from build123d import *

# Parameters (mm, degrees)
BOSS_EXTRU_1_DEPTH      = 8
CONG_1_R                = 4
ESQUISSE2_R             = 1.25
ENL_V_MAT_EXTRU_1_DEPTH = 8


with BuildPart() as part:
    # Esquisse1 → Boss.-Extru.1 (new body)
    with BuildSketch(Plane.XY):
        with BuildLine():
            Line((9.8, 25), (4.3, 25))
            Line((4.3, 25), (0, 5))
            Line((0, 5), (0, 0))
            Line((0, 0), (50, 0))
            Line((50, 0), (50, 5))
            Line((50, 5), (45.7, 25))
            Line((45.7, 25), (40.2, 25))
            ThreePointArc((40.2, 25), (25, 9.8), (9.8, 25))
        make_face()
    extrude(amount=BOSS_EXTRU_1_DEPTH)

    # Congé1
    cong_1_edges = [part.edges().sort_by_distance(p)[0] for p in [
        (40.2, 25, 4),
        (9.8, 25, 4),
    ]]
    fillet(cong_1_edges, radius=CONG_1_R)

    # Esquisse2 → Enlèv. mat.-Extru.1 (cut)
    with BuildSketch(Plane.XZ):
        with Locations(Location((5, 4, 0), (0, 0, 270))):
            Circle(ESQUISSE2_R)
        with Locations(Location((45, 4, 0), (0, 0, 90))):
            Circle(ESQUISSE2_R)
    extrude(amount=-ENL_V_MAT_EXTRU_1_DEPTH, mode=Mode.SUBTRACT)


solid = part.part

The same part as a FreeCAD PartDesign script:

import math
import FreeCAD as App
import Part
import Sketcher

V = App.Vector


def edges_at(feature, points):
    """Names of the edges that pass closest to the given points."""
    edges = feature.Shape.Edges
    near = lambda p: min(range(len(edges)), key=lambda i: edges[i].distToShape(Part.Vertex(*p))[0])
    return sorted({f"Edge{near(p) + 1}" for p in points})

doc = App.newDocument("Part")
body = doc.addObject("PartDesign::Body", "Body")

# Sketch on XY plane
sketch1 = body.newObject("Sketcher::SketchObject", "Sketch")
sketch1.AttachmentSupport = (doc.getObject("XY_Plane"), [""])
sketch1.MapMode = "FlatFace"
sketch1.addGeometry([
    Part.LineSegment(V(10, 25, 0), V(4, 25, 0)),  # 0
    Part.LineSegment(V(4, 25, 0), V(0, 5, 0)),  # 1
    Part.LineSegment(V(0, 5, 0), V(0, 0, 0)),  # 2
    Part.LineSegment(V(0, 0, 0), V(50, 0, 0)),  # 3
    Part.LineSegment(V(50, 0, 0), V(50, 5, 0)),  # 4
    Part.LineSegment(V(50, 5, 0), V(46, 25, 0)),  # 5
    Part.LineSegment(V(46, 25, 0), V(40, 25, 0)),  # 6
    Part.ArcOfCircle(Part.Circle(V(25, 25, 0), V(0, 0, 1), 15), math.radians(180), math.radians(360)),  # 7
], False)
sketch1.addConstraint([
    Sketcher.Constraint("Coincident", 0, 2, 1, 1),
    Sketcher.Constraint("Coincident", 1, 2, 2, 1),
    Sketcher.Constraint("Coincident", 2, 2, 3, 1),
    Sketcher.Constraint("Coincident", 3, 2, 4, 1),
    Sketcher.Constraint("Coincident", 4, 2, 5, 1),
    Sketcher.Constraint("Coincident", 5, 2, 6, 1),
    Sketcher.Constraint("Coincident", 6, 2, 7, 2),
    Sketcher.Constraint("Coincident", 7, 1, 0, 1),
    Sketcher.Constraint("Horizontal", 0),
    Sketcher.Constraint("Vertical", 2),
    Sketcher.Constraint("Horizontal", 3),
    Sketcher.Constraint("Vertical", 4),
    Sketcher.Constraint("Horizontal", 6),
    Sketcher.Constraint("Coincident", 2, 2, -1, 1),
    Sketcher.Constraint("Horizontal", 7, 3, 0, 2),
    Sketcher.Constraint("Horizontal", 1, 2, 4, 2),
    Sketcher.Constraint("Horizontal", 0, 2, 5, 2),
    Sketcher.Constraint("Equal", 0, 6),
    Sketcher.Constraint("Equal", 1, 5),
    Sketcher.Constraint("Radius", 7, 15.2),
    Sketcher.Constraint("DistanceX", 3, 1, 3, 2, 50.0),
    Sketcher.Constraint("DistanceY", 2, 2, 2, 1, 5.0),
    Sketcher.Constraint("DistanceX", 0, 2, 0, 1, 5.5),
    Sketcher.Constraint("DistanceY", -1, 1, 7, 3, 25.0),
])
pad1 = body.newObject("PartDesign::Pad", "Pad")
pad1.Profile = sketch1
pad1.Length = 8
doc.recompute()

fillet = body.newObject("PartDesign::Fillet", "Fillet")
fillet.Base = (pad1, edges_at(pad1, [(40.2, 25, 4), (9.8, 25, 4)]))
fillet.Radius = 4

# Sketch on XZ plane
sketch2 = body.newObject("Sketcher::SketchObject", "Sketch001")
sketch2.AttachmentSupport = (doc.getObject("XZ_Plane"), [""])
sketch2.MapMode = "FlatFace"
sketch2.addGeometry([
    Part.Circle(V(5, 4, 0), V(0, 0, 1), 1.2),
    Part.Circle(V(45, 4, 0), V(0, 0, 1), 1.2),
], False)
sketch2.addConstraint([
    Sketcher.Constraint("Equal", 0, 1),
    Sketcher.Constraint("Horizontal", 0, 3, 1, 3),
    Sketcher.Constraint("Diameter", 0, 2.5),
    Sketcher.Constraint("DistanceX", -1, 1, 0, 3, 5.0),
    Sketcher.Constraint("DistanceY", -1, 1, 0, 3, 4.0),
    Sketcher.Constraint("DistanceX", -1, 1, 1, 3, 45.0),
])
pocket1 = body.newObject("PartDesign::Pocket", "Pocket")
pocket1.Profile = sketch2
pocket1.Length = 8

doc.recompute()
